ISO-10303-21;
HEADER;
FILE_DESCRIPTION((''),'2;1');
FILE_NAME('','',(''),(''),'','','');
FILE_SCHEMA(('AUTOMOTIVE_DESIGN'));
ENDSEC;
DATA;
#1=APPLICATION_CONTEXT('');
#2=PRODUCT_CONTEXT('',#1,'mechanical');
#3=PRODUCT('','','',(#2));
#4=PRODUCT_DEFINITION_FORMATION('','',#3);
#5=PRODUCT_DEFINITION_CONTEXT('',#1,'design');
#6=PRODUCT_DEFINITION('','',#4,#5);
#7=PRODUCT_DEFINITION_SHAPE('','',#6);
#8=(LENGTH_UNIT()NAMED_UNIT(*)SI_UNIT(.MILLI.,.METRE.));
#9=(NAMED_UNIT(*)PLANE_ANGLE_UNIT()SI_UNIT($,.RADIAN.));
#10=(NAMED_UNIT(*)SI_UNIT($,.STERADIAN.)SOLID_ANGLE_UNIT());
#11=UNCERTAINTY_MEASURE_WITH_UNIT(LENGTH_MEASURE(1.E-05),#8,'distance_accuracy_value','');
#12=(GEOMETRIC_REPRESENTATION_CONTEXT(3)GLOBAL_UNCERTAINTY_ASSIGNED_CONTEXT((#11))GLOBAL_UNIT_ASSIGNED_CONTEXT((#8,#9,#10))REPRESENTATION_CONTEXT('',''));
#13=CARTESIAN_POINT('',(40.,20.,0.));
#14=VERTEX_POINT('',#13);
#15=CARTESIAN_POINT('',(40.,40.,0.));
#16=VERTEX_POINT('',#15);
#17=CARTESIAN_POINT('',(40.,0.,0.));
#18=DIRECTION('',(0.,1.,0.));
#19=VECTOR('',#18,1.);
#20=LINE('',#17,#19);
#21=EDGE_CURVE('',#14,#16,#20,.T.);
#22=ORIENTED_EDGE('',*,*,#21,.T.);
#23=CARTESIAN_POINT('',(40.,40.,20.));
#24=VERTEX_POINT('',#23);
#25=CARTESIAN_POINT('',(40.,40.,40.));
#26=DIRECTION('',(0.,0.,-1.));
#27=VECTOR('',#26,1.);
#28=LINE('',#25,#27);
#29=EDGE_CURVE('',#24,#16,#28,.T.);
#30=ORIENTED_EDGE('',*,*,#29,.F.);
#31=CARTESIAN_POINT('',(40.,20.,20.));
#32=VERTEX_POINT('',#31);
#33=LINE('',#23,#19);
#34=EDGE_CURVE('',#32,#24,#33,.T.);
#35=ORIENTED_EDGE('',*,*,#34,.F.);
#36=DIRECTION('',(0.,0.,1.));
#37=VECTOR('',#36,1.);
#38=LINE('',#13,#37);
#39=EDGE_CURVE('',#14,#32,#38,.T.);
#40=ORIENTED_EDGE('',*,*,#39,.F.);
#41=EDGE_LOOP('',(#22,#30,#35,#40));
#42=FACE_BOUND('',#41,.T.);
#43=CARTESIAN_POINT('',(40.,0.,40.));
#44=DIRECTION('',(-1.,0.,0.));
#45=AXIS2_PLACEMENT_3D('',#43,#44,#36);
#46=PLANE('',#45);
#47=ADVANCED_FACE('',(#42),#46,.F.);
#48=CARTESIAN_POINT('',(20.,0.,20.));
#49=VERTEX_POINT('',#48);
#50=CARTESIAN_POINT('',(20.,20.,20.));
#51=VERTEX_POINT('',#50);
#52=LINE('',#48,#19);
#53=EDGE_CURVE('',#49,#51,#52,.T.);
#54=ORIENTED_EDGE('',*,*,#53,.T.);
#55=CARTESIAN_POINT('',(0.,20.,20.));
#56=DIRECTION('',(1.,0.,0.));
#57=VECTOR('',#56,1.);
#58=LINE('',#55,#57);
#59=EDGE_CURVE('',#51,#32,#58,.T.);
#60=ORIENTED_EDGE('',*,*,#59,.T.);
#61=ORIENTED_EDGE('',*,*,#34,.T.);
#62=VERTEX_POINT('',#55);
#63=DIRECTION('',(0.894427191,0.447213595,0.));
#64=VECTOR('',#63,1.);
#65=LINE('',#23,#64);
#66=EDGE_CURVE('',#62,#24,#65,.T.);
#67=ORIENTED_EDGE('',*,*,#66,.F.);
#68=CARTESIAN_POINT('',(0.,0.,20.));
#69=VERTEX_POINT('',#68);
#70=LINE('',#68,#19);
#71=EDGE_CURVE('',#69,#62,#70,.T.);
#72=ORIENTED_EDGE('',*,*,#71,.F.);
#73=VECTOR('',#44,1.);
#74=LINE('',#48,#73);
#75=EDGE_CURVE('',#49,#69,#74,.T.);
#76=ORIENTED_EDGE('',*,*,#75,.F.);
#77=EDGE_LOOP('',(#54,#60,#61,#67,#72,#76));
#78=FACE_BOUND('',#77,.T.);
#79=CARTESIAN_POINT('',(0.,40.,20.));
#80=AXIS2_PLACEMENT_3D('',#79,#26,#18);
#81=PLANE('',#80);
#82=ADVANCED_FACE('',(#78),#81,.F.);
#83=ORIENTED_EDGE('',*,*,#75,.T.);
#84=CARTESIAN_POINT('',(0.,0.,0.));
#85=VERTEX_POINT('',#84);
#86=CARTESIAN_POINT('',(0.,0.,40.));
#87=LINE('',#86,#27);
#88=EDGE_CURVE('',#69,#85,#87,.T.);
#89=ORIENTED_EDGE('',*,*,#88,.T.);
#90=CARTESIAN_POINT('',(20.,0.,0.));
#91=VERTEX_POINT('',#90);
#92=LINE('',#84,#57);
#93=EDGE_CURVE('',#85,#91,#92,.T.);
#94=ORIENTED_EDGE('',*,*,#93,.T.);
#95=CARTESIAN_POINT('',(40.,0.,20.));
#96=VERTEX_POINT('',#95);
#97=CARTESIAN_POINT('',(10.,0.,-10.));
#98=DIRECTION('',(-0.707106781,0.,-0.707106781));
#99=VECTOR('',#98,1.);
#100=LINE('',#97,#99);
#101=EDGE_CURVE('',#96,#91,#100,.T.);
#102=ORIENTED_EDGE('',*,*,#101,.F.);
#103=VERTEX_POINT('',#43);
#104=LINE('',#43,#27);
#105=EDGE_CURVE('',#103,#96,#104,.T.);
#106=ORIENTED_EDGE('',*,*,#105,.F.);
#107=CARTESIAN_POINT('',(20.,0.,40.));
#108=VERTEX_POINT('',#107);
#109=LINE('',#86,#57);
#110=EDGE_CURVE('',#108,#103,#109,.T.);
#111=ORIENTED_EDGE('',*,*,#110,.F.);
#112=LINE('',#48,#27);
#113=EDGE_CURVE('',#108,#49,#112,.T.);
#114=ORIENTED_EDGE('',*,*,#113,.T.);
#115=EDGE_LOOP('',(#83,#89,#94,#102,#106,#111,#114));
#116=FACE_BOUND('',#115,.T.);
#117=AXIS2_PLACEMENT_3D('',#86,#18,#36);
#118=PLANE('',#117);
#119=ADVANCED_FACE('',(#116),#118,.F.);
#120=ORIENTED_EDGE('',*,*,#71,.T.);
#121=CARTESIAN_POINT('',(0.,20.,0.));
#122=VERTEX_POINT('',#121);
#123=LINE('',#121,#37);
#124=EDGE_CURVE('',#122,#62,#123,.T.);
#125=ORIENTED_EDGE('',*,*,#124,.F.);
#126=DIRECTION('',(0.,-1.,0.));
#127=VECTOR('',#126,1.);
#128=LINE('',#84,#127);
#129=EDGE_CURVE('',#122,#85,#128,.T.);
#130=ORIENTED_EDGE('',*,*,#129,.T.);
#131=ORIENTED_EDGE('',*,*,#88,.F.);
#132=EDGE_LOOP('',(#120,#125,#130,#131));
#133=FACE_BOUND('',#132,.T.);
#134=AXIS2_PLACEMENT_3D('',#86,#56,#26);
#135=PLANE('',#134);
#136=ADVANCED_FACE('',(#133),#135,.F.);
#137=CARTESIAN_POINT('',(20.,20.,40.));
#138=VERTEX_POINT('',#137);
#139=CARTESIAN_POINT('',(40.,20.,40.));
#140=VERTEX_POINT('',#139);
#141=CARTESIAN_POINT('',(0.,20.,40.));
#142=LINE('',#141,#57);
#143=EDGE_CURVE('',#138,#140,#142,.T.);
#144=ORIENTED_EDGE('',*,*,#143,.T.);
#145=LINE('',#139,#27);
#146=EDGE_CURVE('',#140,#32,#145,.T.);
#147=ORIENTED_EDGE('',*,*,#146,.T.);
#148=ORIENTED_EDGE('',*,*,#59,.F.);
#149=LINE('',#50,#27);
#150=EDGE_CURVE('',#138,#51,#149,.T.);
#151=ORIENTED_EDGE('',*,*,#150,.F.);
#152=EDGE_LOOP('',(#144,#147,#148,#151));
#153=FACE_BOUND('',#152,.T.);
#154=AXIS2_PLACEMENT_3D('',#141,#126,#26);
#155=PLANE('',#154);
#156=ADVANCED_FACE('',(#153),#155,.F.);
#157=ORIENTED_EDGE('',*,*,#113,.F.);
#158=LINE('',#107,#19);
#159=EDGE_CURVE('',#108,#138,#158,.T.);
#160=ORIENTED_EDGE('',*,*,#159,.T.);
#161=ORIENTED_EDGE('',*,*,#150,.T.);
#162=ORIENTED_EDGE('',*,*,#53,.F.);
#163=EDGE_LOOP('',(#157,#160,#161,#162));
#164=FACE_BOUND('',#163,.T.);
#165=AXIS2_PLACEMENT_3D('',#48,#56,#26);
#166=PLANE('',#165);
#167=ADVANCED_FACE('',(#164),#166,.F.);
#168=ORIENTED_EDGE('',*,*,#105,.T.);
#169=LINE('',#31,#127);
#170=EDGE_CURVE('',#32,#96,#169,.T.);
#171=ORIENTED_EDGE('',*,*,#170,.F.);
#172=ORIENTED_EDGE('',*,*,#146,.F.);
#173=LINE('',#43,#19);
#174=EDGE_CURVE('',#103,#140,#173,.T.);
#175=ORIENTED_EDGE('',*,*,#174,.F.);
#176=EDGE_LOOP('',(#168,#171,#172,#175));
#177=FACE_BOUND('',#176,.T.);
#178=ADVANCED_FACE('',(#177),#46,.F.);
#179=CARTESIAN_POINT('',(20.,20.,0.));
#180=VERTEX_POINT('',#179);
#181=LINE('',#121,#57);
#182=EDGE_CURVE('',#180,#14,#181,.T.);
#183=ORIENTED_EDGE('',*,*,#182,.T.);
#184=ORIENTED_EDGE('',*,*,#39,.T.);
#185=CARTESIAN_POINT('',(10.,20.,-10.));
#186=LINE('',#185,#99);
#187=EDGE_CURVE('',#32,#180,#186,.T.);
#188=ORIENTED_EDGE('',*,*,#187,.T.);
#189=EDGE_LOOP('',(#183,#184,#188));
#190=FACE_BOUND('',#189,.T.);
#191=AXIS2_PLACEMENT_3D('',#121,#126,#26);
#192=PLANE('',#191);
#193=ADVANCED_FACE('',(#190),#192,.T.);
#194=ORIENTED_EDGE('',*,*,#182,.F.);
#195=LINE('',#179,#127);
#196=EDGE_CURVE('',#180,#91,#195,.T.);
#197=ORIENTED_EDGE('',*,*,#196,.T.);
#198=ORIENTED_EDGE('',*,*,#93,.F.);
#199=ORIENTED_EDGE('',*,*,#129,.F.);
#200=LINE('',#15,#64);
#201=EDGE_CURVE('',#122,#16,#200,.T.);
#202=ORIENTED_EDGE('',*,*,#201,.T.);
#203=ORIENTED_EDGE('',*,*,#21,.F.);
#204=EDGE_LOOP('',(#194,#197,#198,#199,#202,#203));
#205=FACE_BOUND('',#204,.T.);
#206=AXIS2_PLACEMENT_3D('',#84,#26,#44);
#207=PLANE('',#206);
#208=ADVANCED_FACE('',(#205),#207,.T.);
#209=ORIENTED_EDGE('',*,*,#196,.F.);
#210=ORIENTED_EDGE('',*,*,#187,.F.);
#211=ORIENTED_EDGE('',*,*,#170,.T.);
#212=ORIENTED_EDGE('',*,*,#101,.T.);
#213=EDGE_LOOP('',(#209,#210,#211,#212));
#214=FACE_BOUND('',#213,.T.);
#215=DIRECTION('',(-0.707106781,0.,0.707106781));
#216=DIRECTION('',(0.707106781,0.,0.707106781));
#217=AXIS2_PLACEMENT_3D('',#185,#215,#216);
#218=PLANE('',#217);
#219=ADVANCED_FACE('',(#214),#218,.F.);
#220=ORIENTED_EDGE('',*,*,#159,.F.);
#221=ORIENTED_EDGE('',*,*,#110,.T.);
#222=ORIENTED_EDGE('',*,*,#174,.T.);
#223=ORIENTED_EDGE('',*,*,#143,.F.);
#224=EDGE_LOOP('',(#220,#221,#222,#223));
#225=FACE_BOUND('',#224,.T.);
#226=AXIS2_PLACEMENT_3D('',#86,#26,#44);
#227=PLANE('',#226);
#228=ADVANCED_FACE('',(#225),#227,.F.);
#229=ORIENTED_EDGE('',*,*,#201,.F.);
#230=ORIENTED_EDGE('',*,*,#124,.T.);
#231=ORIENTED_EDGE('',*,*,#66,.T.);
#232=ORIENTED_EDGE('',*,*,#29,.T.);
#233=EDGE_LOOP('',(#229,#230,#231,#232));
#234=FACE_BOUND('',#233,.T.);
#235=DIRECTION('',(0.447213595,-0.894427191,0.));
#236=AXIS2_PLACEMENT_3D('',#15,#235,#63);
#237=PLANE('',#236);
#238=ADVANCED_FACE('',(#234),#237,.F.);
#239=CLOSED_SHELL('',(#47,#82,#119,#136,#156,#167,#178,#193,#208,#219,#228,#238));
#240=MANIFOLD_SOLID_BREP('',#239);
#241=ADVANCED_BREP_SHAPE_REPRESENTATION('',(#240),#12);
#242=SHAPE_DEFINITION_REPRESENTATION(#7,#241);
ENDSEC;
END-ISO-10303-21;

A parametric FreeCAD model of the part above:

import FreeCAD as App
import Part
import Sketcher

doc = App.newDocument("Part")
params = doc.addObject("Spreadsheet::Sheet", "Params")
for row, (alias, value) in enumerate([
    ("sketch1_width", "40 mm"),
    ("pad1_length", "40 mm"),
    ("sketch2_width", "40 mm"),
    ("sketch2_height", "20 mm"),
    ("pocket1_length", "40 mm"),
    ("sketch3_width", "20 mm"),
    ("pocket2_length", "40 mm"),
    ("sketch4_width", "20 mm"),
    ("pocket3_length", "20 mm"),
    ("sketch5_width", "20 mm"),
    ("pocket4_length", "20 mm"),
], start=1):
    params.set(f"A{row}", alias)
    params.set(f"B{row}", "=" + value)
    params.setAlias(f"B{row}", alias)

body = doc.addObject("PartDesign::Body", "Body")

sketch1 = doc.addObject("Sketcher::SketchObject", "Sketch")
body.addObject(sketch1)
sketch1.AttachmentSupport = (doc.XY_Plane, [""])
sketch1.MapMode = "FlatFace"
sketch1.addGeometry([
    Part.LineSegment(App.Vector(0, 40, 0), App.Vector(0, 0, 0)),
    Part.LineSegment(App.Vector(0, 0, 0), App.Vector(40, 0, 0)),
    Part.LineSegment(App.Vector(40, 0, 0), App.Vector(40, 40, 0)),
    Part.LineSegment(App.Vector(40, 40, 0), App.Vector(0, 40, 0)),
], False)
sketch1.addConstraint([
    Sketcher.Constraint("Coincident", 0, 2, 1, 1),
    Sketcher.Constraint("Coincident", 1, 2, 2, 1),
    Sketcher.Constraint("Coincident", 2, 2, 3, 1),
    Sketcher.Constraint("Coincident", 3, 2, 0, 1),
    Sketcher.Constraint("Vertical", 0),
    Sketcher.Constraint("Horizontal", 1),
    Sketcher.Constraint("Vertical", 2),
    Sketcher.Constraint("Horizontal", 3),
    Sketcher.Constraint("Coincident", 0, 2, -1, 1),
    Sketcher.Constraint("Equal", 3, 0),
    Sketcher.Constraint("DistanceX", 1, 1, 1, 2, 40.0),
])
sketch1.setExpression("Constraints[10]", "Params.sketch1_width")
pad1 = doc.addObject("PartDesign::Pad", "Pad")
body.addObject(pad1)
pad1.Profile = sketch1
pad1.setExpression("Length", "Params.pad1_length")

sketch2 = doc.addObject("Sketcher::SketchObject", "Sketch001")
body.addObject(sketch2)
sketch2.AttachmentSupport = (doc.XY_Plane, [""])
sketch2.MapMode = "FlatFace"
sketch2.AttachmentOffset = App.Placement(App.Vector(0, 0, 40), App.Rotation())
sketch2.addGeometry([
    Part.LineSegment(App.Vector(0, 20, 0), App.Vector(40, 40, 0)),
    Part.LineSegment(App.Vector(40, 40, 0), App.Vector(0, 40, 0)),
    Part.LineSegment(App.Vector(0, 40, 0), App.Vector(0, 20, 0)),
], False)
sketch2.addConstraint([
    Sketcher.Constraint("Coincident", 0, 2, 1, 1),
    Sketcher.Constraint("Coincident", 1, 2, 2, 1),
    Sketcher.Constraint("Coincident", 2, 2, 0, 1),
    Sketcher.Constraint("Horizontal", 1),
    Sketcher.Constraint("Vertical", 2),
    Sketcher.Constraint("PointOnObject", 1, 2, -2),
    Sketcher.Constraint("DistanceX", 1, 2, 1, 1, 40.0),
    Sketcher.Constraint("DistanceY", 2, 2, 2, 1, 20.0),
    Sketcher.Constraint("DistanceY", -1, 1, 0, 2, 40.0),
])
sketch2.setExpression("Constraints[6]", "Params.sketch2_width")
sketch2.setExpression("Constraints[7]", "Params.sketch2_height")
pocket1 = doc.addObject("PartDesign::Pocket", "Pocket")
body.addObject(pocket1)
pocket1.Profile = sketch2
pocket1.setExpression("Length", "Params.pocket1_length")

sketch3 = doc.addObject("Sketcher::SketchObject", "Sketch002")
body.addObject(sketch3)
sketch3.AttachmentSupport = (doc.YZ_Plane, [""])
sketch3.MapMode = "FlatFace"
sketch3.AttachmentOffset = App.Placement(App.Vector(0, 0, 40), App.Rotation())
sketch3.addGeometry([
    Part.LineSegment(App.Vector(40, 40, 0), App.Vector(20, 40, 0)),
    Part.LineSegment(App.Vector(20, 40, 0), App.Vector(20, 20, 0)),
    Part.LineSegment(App.Vector(20, 20, 0), App.Vector(40, 20, 0)),
    Part.LineSegment(App.Vector(40, 20, 0), App.Vector(40, 40, 0)),
], False)
sketch3.addConstraint([
    Sketcher.Constraint("Coincident", 0, 2, 1, 1),
    Sketcher.Constraint("Coincident", 1, 2, 2, 1),
    Sketcher.Constraint("Coincident", 2, 2, 3, 1),
    Sketcher.Constraint("Coincident", 3, 2, 0, 1),
    Sketcher.Constraint("Horizontal", 0),
    Sketcher.Constraint("Vertical", 1),
    Sketcher.Constraint("Horizontal", 2),
    Sketcher.Constraint("Vertical", 3),
    Sketcher.Constraint("Equal", 2, 1),
    Sketcher.Constraint("DistanceX", 0, 2, 0, 1, 20.0),
    Sketcher.Constraint("DistanceX", -1, 1, 0, 2, 20.0),
    Sketcher.Constraint("DistanceY", -1, 1, 0, 2, 40.0),
])
sketch3.setExpression("Constraints[9]", "Params.sketch3_width")
pocket2 = doc.addObject("PartDesign::Pocket", "Pocket001")
body.addObject(pocket2)
pocket2.Profile = sketch3
pocket2.setExpression("Length", "Params.pocket2_length")

sketch4 = doc.addObject("Sketcher::SketchObject", "Sketch003")
body.addObject(sketch4)
sketch4.AttachmentSupport = (doc.XZ_Plane, [""])
sketch4.MapMode = "FlatFace"
sketch4.addGeometry([
    Part.LineSegment(App.Vector(40, 0, 0), App.Vector(40, 20, 0)),
    Part.LineSegment(App.Vector(40, 20, 0), App.Vector(20, 0, 0)),
    Part.LineSegment(App.Vector(20, 0, 0), App.Vector(40, 0, 0)),
], False)
sketch4.addConstraint([
    Sketcher.Constraint("Coincident", 0, 2, 1, 1),
    Sketcher.Constraint("Coincident", 1, 2, 2, 1),
    Sketcher.Constraint("Coincident", 2, 2, 0, 1),
    Sketcher.Constraint("Vertical", 0),
    Sketcher.Constraint("Horizontal", 2),
    Sketcher.Constraint("PointOnObject", 1, 2, -1),
    Sketcher.Constraint("Equal", 2, 0),
    Sketcher.Constraint("DistanceX", 2, 1, 2, 2, 20.0),
    Sketcher.Constraint("DistanceX", -1, 1, 0, 2, 40.0),
])
sketch4.setExpression("Constraints[7]", "Params.sketch4_width")
pocket3 = doc.addObject("PartDesign::Pocket", "Pocket002")
body.addObject(pocket3)
pocket3.Profile = sketch4
pocket3.setExpression("Length", "Params.pocket3_length")

sketch5 = doc.addObject("Sketcher::SketchObject", "Sketch004")
body.addObject(sketch5)
sketch5.AttachmentSupport = (doc.XZ_Plane, [""])
sketch5.MapMode = "FlatFace"
sketch5.AttachmentOffset = App.Placement(App.Vector(0, 0, -20), App.Rotation())
sketch5.addGeometry([
    Part.LineSegment(App.Vector(0, 20, 0), App.Vector(0, 40, 0)),
    Part.LineSegment(App.Vector(0, 40, 0), App.Vector(20, 40, 0)),
    Part.LineSegment(App.Vector(20, 40, 0), App.Vector(20, 20, 0)),
    Part.LineSegment(App.Vector(20, 20, 0), App.Vector(0, 20, 0)),
], False)
sketch5.addConstraint([
    Sketcher.Constraint("Coincident", 0, 2, 1, 1),
    Sketcher.Constraint("Coincident", 1, 2, 2, 1),
    Sketcher.Constraint("Coincident", 2, 2, 3, 1),
    Sketcher.Constraint("Coincident", 3, 2, 0, 1),
    Sketcher.Constraint("Vertical", 0),
    Sketcher.Constraint("Horizontal", 1),
    Sketcher.Constraint("Vertical", 2),
    Sketcher.Constraint("Horizontal", 3),
    Sketcher.Constraint("PointOnObject", 0, 2, -2),
    Sketcher.Constraint("Equal", 3, 0),
    Sketcher.Constraint("DistanceX", 1, 1, 1, 2, 20.0),
    Sketcher.Constraint("DistanceY", -1, 1, 0, 2, 40.0),
])
sketch5.setExpression("Constraints[10]", "Params.sketch5_width")
pocket4 = doc.addObject("PartDesign::Pocket", "Pocket003")
body.addObject(pocket4)
pocket4.Profile = sketch5
pocket4.setExpression("Length", "Params.pocket4_length")
pocket4.Reversed = True

doc.recompute()
